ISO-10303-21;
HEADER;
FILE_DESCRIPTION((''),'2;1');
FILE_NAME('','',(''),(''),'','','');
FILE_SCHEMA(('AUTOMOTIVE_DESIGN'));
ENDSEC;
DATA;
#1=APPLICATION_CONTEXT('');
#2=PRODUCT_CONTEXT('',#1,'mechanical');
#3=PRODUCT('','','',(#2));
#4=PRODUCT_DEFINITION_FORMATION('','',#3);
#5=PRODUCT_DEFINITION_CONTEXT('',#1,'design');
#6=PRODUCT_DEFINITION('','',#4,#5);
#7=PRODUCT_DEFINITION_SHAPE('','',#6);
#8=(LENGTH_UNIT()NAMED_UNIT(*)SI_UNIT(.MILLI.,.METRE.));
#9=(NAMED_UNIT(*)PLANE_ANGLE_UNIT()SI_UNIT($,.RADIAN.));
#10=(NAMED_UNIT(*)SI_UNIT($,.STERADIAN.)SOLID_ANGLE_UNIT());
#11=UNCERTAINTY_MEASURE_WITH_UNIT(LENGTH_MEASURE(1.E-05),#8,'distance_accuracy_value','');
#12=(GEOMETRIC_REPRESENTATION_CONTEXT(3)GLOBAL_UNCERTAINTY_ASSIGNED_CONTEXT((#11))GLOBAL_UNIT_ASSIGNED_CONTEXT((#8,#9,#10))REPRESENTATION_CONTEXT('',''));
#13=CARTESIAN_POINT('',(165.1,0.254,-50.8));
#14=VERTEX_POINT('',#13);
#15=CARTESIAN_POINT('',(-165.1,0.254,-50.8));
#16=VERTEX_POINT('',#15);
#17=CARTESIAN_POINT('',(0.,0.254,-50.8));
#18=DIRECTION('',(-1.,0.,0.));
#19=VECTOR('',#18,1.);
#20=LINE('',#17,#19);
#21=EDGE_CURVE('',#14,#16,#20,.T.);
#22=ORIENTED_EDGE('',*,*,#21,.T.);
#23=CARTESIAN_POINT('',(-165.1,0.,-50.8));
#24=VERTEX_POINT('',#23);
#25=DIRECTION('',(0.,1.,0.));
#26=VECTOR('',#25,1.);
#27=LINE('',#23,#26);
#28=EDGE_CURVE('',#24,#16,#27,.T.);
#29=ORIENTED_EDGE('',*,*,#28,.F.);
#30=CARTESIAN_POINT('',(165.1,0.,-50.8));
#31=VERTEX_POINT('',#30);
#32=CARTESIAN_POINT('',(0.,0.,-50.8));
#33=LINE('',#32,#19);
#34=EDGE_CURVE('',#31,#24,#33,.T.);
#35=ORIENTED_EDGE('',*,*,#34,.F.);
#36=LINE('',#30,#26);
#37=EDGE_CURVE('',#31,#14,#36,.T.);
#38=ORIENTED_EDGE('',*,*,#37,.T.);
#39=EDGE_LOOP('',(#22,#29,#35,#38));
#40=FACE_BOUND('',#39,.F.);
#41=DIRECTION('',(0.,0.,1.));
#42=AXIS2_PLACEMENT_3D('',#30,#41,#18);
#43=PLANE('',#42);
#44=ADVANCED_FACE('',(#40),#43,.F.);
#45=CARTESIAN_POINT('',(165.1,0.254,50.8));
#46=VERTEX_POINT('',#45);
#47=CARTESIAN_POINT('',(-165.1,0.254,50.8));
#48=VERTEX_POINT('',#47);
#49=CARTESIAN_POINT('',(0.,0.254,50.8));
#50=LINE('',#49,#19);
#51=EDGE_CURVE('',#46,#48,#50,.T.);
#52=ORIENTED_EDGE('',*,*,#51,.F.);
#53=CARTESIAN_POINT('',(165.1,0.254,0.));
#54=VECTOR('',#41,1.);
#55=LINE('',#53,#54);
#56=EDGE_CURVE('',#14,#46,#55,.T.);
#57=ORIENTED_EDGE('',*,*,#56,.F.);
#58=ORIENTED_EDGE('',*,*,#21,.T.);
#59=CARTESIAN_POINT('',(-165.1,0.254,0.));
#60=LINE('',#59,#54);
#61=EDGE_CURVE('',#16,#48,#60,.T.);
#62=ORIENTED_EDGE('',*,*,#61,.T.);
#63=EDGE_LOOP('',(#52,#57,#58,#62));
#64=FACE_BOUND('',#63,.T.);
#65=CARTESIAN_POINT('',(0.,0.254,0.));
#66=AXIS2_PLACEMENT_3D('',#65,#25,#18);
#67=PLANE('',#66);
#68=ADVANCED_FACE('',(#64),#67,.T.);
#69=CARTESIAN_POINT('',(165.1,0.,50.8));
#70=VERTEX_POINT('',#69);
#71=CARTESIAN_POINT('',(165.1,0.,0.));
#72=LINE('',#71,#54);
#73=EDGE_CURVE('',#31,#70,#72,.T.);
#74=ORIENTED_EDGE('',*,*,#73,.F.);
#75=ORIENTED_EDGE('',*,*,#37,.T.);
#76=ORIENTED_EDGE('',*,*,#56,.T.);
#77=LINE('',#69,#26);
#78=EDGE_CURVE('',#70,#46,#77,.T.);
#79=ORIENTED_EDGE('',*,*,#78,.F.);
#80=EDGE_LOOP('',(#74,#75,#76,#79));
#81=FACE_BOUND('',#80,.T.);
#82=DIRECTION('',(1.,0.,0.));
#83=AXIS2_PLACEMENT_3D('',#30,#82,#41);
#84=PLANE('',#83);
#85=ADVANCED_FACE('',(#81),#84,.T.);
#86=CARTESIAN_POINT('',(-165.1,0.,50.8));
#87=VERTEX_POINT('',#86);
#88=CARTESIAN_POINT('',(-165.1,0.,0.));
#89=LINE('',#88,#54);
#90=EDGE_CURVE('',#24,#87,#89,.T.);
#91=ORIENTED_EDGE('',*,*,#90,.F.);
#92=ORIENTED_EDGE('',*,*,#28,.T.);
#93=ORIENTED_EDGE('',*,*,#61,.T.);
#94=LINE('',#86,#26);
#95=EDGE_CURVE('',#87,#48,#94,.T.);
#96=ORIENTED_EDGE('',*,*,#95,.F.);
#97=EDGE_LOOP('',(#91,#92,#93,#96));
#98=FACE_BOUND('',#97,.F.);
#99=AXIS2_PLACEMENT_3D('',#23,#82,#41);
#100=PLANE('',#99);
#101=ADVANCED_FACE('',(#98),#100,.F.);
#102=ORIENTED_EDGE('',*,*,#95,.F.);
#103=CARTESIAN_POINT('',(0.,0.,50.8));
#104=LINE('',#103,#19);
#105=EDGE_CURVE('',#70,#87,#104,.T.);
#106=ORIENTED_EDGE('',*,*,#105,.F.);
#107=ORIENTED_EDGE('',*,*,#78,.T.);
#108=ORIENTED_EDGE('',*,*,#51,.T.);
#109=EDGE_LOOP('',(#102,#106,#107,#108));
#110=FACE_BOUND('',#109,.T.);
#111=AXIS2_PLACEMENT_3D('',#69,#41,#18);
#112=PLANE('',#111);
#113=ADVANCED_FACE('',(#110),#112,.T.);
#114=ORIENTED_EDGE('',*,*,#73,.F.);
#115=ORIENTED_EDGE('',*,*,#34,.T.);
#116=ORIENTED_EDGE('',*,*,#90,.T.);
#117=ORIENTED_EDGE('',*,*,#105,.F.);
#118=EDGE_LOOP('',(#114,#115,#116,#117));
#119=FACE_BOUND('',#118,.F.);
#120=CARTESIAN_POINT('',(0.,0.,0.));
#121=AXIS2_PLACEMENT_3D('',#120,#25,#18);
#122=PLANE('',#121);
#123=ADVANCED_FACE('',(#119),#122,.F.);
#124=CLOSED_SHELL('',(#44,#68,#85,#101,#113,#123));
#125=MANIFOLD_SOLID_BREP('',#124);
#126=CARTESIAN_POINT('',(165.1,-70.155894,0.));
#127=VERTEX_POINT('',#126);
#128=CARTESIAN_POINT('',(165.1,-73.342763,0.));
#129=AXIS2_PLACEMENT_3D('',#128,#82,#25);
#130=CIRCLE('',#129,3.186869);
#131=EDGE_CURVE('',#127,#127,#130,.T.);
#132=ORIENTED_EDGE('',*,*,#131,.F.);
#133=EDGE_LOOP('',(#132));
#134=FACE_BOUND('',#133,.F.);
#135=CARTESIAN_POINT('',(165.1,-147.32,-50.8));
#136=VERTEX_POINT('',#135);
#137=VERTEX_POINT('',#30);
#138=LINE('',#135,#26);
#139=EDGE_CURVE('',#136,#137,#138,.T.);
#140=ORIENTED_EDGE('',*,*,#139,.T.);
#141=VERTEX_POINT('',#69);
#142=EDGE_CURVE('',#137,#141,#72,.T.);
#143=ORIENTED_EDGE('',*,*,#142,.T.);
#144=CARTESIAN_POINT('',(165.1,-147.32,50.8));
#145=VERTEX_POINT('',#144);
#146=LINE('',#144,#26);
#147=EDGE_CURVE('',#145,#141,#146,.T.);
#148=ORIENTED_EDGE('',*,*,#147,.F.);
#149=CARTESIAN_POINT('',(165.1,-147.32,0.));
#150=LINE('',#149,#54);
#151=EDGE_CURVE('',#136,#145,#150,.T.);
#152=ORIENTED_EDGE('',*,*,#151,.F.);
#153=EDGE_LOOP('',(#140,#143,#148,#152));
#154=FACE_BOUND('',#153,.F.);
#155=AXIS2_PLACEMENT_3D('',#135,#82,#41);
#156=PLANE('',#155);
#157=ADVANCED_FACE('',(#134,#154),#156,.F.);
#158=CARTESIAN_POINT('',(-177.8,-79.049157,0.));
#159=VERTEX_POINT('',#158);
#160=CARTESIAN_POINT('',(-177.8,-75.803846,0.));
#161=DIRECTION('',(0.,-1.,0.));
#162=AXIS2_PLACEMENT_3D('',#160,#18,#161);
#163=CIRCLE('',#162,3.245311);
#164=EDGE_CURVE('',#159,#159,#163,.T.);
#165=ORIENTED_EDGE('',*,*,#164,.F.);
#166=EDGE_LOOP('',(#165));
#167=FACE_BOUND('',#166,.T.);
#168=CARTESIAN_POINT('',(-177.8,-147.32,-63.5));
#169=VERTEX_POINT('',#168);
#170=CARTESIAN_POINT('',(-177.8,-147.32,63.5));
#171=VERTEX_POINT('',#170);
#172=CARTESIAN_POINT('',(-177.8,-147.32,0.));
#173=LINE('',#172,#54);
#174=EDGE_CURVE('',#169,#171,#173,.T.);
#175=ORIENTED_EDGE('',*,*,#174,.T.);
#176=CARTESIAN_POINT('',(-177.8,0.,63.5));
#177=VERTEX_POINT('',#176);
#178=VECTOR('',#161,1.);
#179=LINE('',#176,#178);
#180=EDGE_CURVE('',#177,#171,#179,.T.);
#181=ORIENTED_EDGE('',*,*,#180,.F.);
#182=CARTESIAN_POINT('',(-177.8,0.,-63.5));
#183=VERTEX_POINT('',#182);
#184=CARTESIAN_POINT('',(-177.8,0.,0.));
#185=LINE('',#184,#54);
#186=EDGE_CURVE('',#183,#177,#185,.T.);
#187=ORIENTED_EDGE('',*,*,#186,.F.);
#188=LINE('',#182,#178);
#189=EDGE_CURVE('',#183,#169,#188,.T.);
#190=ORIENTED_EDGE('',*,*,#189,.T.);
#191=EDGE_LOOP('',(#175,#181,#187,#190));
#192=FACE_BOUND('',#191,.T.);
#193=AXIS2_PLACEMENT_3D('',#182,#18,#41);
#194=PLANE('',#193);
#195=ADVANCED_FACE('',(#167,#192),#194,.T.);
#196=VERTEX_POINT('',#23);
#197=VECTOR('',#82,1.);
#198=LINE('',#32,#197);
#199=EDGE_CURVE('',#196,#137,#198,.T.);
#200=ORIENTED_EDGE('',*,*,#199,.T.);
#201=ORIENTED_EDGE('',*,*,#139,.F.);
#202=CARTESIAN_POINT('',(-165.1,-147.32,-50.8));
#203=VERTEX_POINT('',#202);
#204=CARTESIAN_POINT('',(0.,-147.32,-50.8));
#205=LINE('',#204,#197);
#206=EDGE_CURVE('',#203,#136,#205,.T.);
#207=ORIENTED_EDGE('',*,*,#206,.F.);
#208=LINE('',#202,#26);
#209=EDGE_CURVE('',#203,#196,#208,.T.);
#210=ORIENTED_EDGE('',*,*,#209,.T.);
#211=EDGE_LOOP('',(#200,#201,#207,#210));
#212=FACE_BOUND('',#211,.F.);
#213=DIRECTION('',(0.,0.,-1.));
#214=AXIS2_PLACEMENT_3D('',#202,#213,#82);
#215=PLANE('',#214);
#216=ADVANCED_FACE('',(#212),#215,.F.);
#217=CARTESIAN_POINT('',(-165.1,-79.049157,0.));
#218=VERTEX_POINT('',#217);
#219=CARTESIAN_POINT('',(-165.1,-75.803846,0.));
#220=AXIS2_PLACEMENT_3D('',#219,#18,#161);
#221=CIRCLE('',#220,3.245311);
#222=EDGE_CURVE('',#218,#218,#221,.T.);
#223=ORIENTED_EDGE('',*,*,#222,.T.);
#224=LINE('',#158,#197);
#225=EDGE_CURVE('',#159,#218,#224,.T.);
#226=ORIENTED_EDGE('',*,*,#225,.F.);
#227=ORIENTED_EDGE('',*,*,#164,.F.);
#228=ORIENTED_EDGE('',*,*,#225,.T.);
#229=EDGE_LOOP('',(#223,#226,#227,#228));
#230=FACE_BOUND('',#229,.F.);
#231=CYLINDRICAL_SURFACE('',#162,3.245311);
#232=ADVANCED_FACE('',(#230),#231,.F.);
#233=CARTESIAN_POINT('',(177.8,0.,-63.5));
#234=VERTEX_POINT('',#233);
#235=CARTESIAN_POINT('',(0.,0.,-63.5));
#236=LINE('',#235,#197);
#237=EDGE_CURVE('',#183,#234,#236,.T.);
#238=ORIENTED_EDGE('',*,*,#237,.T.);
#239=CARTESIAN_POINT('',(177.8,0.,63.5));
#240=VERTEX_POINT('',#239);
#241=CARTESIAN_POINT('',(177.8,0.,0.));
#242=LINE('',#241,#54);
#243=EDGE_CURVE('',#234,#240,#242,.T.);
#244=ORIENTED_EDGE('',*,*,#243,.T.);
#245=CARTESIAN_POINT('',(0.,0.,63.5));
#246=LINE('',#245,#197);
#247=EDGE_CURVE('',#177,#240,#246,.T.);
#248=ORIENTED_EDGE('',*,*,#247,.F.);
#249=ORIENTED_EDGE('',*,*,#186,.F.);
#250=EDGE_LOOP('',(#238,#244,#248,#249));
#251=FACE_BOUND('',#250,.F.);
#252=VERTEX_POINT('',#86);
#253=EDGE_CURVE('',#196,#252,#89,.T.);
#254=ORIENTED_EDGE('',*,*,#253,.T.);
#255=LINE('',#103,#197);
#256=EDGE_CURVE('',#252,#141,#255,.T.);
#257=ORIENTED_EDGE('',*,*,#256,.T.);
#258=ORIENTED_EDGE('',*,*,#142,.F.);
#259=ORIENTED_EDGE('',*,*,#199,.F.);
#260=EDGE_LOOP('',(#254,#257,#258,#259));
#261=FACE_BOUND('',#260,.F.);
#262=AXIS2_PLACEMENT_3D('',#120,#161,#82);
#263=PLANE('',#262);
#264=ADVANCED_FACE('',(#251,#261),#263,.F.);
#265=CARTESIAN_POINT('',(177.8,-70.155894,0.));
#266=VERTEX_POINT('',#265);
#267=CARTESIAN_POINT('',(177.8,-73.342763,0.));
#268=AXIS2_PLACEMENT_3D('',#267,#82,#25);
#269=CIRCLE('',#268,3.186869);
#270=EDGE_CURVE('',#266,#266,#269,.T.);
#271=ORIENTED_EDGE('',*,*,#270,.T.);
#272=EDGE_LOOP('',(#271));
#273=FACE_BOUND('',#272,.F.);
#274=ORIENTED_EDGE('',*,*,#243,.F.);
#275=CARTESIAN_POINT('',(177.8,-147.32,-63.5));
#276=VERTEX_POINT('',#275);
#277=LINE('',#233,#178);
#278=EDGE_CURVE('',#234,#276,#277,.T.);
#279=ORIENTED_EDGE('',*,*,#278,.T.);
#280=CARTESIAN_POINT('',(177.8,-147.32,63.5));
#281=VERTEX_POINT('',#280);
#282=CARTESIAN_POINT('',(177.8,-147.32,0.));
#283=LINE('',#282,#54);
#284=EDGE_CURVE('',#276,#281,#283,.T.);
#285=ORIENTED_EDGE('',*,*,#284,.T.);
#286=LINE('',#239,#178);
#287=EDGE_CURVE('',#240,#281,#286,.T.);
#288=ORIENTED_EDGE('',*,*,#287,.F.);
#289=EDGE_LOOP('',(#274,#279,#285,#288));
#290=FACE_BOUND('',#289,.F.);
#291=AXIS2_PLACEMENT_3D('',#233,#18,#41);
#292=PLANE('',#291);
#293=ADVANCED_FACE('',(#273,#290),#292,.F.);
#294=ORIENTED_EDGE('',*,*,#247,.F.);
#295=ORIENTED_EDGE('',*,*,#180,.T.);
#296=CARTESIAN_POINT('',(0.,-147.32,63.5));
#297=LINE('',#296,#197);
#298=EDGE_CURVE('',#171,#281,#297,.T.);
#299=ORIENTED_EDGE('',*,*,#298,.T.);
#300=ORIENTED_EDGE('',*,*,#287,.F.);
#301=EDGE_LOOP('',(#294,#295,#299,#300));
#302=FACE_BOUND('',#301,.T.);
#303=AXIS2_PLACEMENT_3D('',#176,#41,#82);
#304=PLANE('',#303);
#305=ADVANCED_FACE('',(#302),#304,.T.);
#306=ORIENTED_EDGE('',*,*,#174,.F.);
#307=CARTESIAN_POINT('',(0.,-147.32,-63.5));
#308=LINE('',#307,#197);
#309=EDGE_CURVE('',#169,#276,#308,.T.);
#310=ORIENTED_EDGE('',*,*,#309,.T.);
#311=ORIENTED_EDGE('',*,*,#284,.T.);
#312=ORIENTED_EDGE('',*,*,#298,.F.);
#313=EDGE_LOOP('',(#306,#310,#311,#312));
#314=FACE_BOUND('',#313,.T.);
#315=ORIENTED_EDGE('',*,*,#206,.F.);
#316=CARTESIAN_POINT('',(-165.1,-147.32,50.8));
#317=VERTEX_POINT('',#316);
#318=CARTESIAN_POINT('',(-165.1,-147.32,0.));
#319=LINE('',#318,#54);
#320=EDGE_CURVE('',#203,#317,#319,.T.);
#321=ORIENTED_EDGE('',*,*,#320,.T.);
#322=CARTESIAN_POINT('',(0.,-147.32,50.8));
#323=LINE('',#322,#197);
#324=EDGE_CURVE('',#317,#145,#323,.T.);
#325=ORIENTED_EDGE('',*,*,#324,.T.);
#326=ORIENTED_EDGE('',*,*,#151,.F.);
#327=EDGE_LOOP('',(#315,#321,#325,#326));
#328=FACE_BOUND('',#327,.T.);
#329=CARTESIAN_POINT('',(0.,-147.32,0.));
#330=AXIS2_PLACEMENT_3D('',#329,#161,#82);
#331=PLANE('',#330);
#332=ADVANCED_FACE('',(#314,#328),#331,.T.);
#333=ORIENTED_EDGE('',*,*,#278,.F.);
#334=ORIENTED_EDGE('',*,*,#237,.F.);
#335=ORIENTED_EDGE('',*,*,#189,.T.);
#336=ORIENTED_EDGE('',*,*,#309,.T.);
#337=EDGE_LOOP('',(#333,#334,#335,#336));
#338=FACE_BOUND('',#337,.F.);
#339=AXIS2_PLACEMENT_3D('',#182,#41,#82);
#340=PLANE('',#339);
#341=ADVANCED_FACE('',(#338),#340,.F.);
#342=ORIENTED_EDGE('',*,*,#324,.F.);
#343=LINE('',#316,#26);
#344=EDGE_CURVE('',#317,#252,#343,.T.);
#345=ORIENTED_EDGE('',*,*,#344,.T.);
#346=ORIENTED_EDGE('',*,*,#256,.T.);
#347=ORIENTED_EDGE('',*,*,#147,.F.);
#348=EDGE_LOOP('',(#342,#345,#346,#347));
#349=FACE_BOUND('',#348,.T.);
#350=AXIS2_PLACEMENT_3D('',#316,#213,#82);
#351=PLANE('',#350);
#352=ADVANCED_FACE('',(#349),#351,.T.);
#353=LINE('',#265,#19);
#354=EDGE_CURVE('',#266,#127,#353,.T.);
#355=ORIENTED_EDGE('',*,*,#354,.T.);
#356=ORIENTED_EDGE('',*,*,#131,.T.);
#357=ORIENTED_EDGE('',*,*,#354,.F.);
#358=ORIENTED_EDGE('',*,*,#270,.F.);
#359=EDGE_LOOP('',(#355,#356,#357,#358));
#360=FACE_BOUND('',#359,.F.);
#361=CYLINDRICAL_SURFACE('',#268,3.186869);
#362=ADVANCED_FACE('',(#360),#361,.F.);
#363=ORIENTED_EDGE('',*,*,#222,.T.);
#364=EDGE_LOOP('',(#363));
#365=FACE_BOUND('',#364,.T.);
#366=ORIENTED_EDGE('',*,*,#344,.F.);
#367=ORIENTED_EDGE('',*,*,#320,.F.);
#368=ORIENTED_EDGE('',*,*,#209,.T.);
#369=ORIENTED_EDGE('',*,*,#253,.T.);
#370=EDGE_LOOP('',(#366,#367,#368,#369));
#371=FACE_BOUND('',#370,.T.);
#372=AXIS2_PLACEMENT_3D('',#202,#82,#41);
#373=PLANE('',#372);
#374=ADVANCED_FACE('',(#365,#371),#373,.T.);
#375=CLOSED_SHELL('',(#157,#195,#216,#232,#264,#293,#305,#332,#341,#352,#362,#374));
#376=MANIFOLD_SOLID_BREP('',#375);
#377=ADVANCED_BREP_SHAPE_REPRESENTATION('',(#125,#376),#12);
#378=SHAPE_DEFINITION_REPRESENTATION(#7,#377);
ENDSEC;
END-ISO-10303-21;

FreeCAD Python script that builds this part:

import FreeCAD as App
import Part
import Sketcher
Q = App.Units.Quantity


def add_polygon(sketch, points):
    """Adds a closed chain of lines whose ends are joined by coincident constraints."""
    first, n = sketch.GeometryCount, len(points)
    for a, b in zip(points, points[1:] + points[:1]):
        sketch.addGeometry(Part.LineSegment(App.Vector(*a, 0), App.Vector(*b, 0)), False)
    for i in range(n):
        sketch.addConstraint(Sketcher.Constraint("Coincident", first + i, 2, first + (i + 1) % n, 1))

doc = App.newDocument("Part")
body = doc.addObject("PartDesign::Body", "Body")

# Sketch on XZ plane
sketch1 = body.newObject("Sketcher::SketchObject", "Sketch")
sketch1.AttachmentSupport = (doc.getObject("XZ_Plane"), [""])
sketch1.MapMode = "FlatFace"
add_polygon(sketch1, [(-177.8, 63.5), (-177.8, -63.5), (177.8, -63.5), (177.8, 63.5)])  # lines 0-3
sketch1.addConstraint([
    Sketcher.Constraint("Vertical", 0),
    Sketcher.Constraint("Horizontal", 1),
    Sketcher.Constraint("Vertical", 2),
    Sketcher.Constraint("Horizontal", 3),
    Sketcher.Constraint("Symmetric", 0, 2, 2, 2, -1, 1),
    Sketcher.Constraint("DistanceX", 1, 1, 1, 2, Q("14 in")),
    Sketcher.Constraint("DistanceY", 0, 2, 0, 1, Q("5 in")),
])
pad1 = body.newObject("PartDesign::Pad", "Pad")
pad1.Profile = sketch1
pad1.Length = Q("5.8 in")

# Sketch on XZ plane
sketch2 = body.newObject("Sketcher::SketchObject", "Sketch001")
sketch2.AttachmentSupport = (doc.getObject("XZ_Plane"), [""])
sketch2.MapMode = "FlatFace"
sketch2.AttachmentOffset = App.Placement(App.Vector(0, 0, 5.8 * 25.4), App.Rotation())
add_polygon(sketch2, [(-165.1, 50.8), (-165.1, -50.8), (165.1, -50.8), (165.1, 50.8)])  # lines 0-3
sketch2.addConstraint([
    Sketcher.Constraint("Vertical", 0),
    Sketcher.Constraint("Horizontal", 1),
    Sketcher.Constraint("Vertical", 2),
    Sketcher.Constraint("Horizontal", 3),
    Sketcher.Constraint("Symmetric", 0, 2, 2, 2, -1, 1),
    Sketcher.Constraint("DistanceX", 1, 1, 1, 2, Q("13 in")),
    Sketcher.Constraint("DistanceY", 0, 2, 0, 1, Q("4 in")),
])
pocket1 = body.newObject("PartDesign::Pocket", "Pocket")
pocket1.Profile = sketch2
pocket1.Type = "ThroughAll"

# Sketch on YZ plane
sketch3 = body.newObject("Sketcher::SketchObject", "Sketch002")
sketch3.AttachmentSupport = (doc.getObject("YZ_Plane"), [""])
sketch3.MapMode = "FlatFace"
sketch3.AttachmentOffset = App.Placement(App.Vector(0, 0, -7 * 25.4), App.Rotation())
sketch3.addGeometry(Part.Circle(App.Vector(-75.803846, 0, 0), App.Vector(0, 0, 1), 3.245311), False)
sketch3.addConstraint([
    Sketcher.Constraint("PointOnObject", 0, 3, -1),
    Sketcher.Constraint("Diameter", 0, Q("6.490622 mm")),
    Sketcher.Constraint("DistanceX", 0, 3, -1, 1, Q("75.803846 mm")),
])
pocket2 = body.newObject("PartDesign::Pocket", "Pocket001")
pocket2.Profile = sketch3
pocket2.Length = Q("1 in")
pocket2.Reversed = True

# Sketch on YZ plane
sketch4 = body.newObject("Sketcher::SketchObject", "Sketch003")
sketch4.AttachmentSupport = (doc.getObject("YZ_Plane"), [""])
sketch4.MapMode = "FlatFace"
sketch4.AttachmentOffset = App.Placement(App.Vector(0, 0, 7 * 25.4), App.Rotation())
sketch4.addGeometry(Part.Circle(App.Vector(-73.342763, 0, 0), App.Vector(0, 0, 1), 3.186869), False)
sketch4.addConstraint([
    Sketcher.Constraint("PointOnObject", 0, 3, -1),
    Sketcher.Constraint("Diameter", 0, Q("6.373738 mm")),
    Sketcher.Constraint("DistanceX", 0, 3, -1, 1, Q("73.342763 mm")),
])
pocket3 = body.newObject("PartDesign::Pocket", "Pocket002")
pocket3.Profile = sketch4
pocket3.Length = Q("1 in")
body2 = doc.addObject("PartDesign::Body", "Body001")

# Sketch on XZ plane
sketch5 = body2.newObject("Sketcher::SketchObject", "Sketch004")
sketch5.AttachmentSupport = (doc.getObject("XZ_Plane001"), [""])
sketch5.MapMode = "FlatFace"
add_polygon(sketch5, [(165.1, 50.8), (165.1, -50.8), (-165.1, -50.8), (-165.1, 50.8)])  # lines 0-3
sketch5.addConstraint([
    Sketcher.Constraint("Vertical", 0),
    Sketcher.Constraint("Horizontal", 1),
    Sketcher.Constraint("Vertical", 2),
    Sketcher.Constraint("Horizontal", 3),
    Sketcher.Constraint("Symmetric", 0, 2, 2, 2, -1, 1),
    Sketcher.Constraint("DistanceX", 1, 2, 1, 1, Q("13 in")),
    Sketcher.Constraint("DistanceY", 0, 2, 0, 1, Q("4 in")),
])
pad2 = body2.newObject("PartDesign::Pad", "Pad001")
pad2.Profile = sketch5
pad2.Length = Q("0.01 in")
pad2.Reversed = True

doc.recompute()
